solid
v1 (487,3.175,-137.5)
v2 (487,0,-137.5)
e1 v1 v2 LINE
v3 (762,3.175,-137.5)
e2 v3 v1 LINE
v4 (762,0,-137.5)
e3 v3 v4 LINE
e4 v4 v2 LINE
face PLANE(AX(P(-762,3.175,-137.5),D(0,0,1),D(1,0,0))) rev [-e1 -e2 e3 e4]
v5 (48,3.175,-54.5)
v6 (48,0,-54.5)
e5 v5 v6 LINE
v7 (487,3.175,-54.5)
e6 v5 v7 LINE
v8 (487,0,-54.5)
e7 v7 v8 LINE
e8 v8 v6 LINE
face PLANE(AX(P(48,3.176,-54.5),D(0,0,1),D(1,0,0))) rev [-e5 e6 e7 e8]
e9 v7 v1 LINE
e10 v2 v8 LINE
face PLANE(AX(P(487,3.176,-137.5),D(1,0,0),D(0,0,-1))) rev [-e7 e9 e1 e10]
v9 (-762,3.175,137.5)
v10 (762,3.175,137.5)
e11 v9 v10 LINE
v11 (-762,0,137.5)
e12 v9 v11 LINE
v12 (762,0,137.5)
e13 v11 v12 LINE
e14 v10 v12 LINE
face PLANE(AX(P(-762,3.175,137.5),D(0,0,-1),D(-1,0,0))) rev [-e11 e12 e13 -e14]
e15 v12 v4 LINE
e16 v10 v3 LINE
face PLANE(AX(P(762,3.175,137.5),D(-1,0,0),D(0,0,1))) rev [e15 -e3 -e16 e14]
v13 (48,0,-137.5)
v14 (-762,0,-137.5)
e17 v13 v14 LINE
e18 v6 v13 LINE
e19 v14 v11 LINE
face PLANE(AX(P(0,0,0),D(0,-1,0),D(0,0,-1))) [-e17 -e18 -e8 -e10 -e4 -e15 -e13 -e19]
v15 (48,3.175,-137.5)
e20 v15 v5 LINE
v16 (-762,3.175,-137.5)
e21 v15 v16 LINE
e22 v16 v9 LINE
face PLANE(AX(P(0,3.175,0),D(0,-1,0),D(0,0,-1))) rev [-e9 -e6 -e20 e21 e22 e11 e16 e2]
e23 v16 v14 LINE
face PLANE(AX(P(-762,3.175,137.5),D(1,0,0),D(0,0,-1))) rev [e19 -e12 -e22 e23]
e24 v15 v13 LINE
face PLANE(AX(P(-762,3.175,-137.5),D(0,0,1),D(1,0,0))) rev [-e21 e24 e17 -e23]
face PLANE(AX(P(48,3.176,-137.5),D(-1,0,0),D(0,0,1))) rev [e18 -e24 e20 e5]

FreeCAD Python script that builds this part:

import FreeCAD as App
import Part
import Sketcher

V = App.Vector
Q = App.Units.Quantity

doc = App.newDocument("Part")
body = doc.addObject("PartDesign::Body", "Body")

# Sketch on XZ plane
sketch1 = body.newObject("Sketcher::SketchObject", "Sketch")
sketch1.AttachmentSupport = (doc.getObject("XZ_Plane"), [""])
sketch1.MapMode = "FlatFace"
sketch1.addGeometry(Part.LineSegment(V(-762, -137.5, 0), V(-762, 137.5, 0)), False)
sketch1.addGeometry(Part.LineSegment(V(-762, 137.5, 0), V(762, 137.5, 0)), False)
sketch1.addGeometry(Part.LineSegment(V(762, 137.5, 0), V(762, -137.5, 0)), False)
sketch1.addGeometry(Part.LineSegment(V(762, -137.5, 0), V(-762, -137.5, 0)), False)
sketch1.addConstraint(Sketcher.Constraint("Coincident", 0, 2, 1, 1))
sketch1.addConstraint(Sketcher.Constraint("Coincident", 1, 2, 2, 1))
sketch1.addConstraint(Sketcher.Constraint("Coincident", 2, 2, 3, 1))
sketch1.addConstraint(Sketcher.Constraint("Coincident", 3, 2, 0, 1))
sketch1.addConstraint(Sketcher.Constraint("Vertical", 0))
sketch1.addConstraint(Sketcher.Constraint("Horizontal", 1))
sketch1.addConstraint(Sketcher.Constraint("Vertical", 2))
sketch1.addConstraint(Sketcher.Constraint("Horizontal", 3))
sketch1.addConstraint(Sketcher.Constraint("Symmetric", 0, 2, 2, 2, -1, 1))
sketch1.addConstraint(Sketcher.Constraint("DistanceX", 1, 1, 1, 2, Q("1524 mm")))
sketch1.addConstraint(Sketcher.Constraint("DistanceY", 0, 1, 0, 2, Q("275 mm")))
pad1 = body.newObject("PartDesign::Pad", "Pad")
pad1.Profile = sketch1
pad1.Length = 3.175
pad1.Reversed = True

# Sketch on XZ plane
sketch2 = body.newObject("Sketcher::SketchObject", "Sketch001")
sketch2.AttachmentSupport = (doc.getObject("XZ_Plane"), [""])
sketch2.MapMode = "FlatFace"
sketch2.addGeometry(Part.LineSegment(V(48, -54.5, 0), V(48, -137.5, 0)), False)
sketch2.addGeometry(Part.LineSegment(V(48, -137.5, 0), V(487, -137.5, 0)), False)
sketch2.addGeometry(Part.LineSegment(V(487, -137.5, 0), V(487, -54.5, 0)), False)
sketch2.addGeometry(Part.LineSegment(V(487, -54.5, 0), V(48, -54.5, 0)), False)
sketch2.addConstraint(Sketcher.Constraint("Coincident", 0, 2, 1, 1))
sketch2.addConstraint(Sketcher.Constraint("Coincident", 1, 2, 2, 1))
sketch2.addConstraint(Sketcher.Constraint("Coincident", 2, 2, 3, 1))
sketch2.addConstraint(Sketcher.Constraint("Coincident", 3, 2, 0, 1))
sketch2.addConstraint(Sketcher.Constraint("Vertical", 0))
sketch2.addConstraint(Sketcher.Constraint("Horizontal", 1))
sketch2.addConstraint(Sketcher.Constraint("Vertical", 2))
sketch2.addConstraint(Sketcher.Constraint("Horizontal", 3))
sketch2.addConstraint(Sketcher.Constraint("DistanceX", 1, 1, 1, 2, Q("439 mm")))
sketch2.addConstraint(Sketcher.Constraint("DistanceY", 0, 2, 0, 1, Q("83 mm")))
sketch2.addConstraint(Sketcher.Constraint("DistanceX", -1, 1, 0, 2, Q("48 mm")))
sketch2.addConstraint(Sketcher.Constraint("DistanceY", 0, 2, -1, 1, Q("137.5 mm")))
pocket1 = body.newObject("PartDesign::Pocket", "Pocket")
pocket1.Profile = sketch2
pocket1.Type = "UpToFirst"

doc.recompute()
